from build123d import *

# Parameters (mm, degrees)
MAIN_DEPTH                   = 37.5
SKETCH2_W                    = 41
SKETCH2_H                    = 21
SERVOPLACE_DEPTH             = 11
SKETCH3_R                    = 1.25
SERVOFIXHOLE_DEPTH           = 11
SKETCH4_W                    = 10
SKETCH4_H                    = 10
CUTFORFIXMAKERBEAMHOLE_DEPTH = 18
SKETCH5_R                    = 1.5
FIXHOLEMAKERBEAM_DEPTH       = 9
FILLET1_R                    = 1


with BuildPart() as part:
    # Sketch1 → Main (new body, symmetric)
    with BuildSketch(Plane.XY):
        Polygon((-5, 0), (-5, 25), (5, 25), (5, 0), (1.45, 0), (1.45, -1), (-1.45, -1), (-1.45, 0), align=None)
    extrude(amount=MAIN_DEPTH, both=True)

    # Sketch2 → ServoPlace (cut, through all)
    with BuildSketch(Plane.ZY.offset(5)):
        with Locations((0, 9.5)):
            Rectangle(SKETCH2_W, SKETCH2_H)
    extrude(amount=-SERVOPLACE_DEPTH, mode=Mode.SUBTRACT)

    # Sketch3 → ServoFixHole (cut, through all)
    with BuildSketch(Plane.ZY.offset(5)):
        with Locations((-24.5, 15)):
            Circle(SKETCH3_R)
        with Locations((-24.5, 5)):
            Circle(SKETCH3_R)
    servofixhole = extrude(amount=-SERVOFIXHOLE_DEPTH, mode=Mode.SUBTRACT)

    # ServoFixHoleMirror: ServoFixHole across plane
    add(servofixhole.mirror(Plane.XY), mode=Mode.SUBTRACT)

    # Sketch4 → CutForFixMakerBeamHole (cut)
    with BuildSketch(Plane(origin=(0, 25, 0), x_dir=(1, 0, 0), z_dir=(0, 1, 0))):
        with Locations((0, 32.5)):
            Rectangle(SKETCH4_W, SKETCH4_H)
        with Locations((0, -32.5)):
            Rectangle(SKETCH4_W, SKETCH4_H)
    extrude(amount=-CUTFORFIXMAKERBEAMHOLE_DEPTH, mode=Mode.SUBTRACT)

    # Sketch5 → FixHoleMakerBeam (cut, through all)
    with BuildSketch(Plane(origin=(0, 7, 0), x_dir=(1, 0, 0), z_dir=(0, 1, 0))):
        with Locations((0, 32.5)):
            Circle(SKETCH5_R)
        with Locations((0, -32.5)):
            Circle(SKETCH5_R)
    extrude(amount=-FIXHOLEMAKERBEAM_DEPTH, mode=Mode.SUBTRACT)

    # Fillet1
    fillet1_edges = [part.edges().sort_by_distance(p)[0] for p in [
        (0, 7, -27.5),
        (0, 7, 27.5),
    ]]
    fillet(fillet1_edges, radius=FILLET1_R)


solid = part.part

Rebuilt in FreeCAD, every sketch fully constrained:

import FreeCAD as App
import Part
import Sketcher
from FreeCAD import Vector
Q = App.Units.Quantity


def edges_at(feature, points):
    """Names of the edges that pass closest to the given points."""
    edges = feature.Shape.Edges
    near = lambda p: min(range(len(edges)), key=lambda i: edges[i].distToShape(Part.Vertex(*p))[0])
    return sorted({f"Edge{near(p) + 1}" for p in points})

doc = App.newDocument("Part")
params = doc.addObject("Spreadsheet::Sheet", "Params")
for row, (alias, value) in enumerate([
    ("sketch1_width", "10 mm"),
    ("sketch1_height", "25 mm"),
    ("sketch1_height2", "1 mm"),
    ("sketch1_width2", "2.9 mm"),
    ("pad1_length", "75 mm"),
    ("sketch2_width", "21 mm"),
    ("sketch2_height", "41 mm"),
    ("sketch3_diameter", "2.5 mm"),
    ("sketch4_width", "10 mm"),
    ("pocket3_length", "18 mm"),
    ("sketch5_diameter", "3 mm"),
    ("fillet_radius", "1 mm"),
], start=1):
    params.set(f"A{row}", alias)
    params.set(f"B{row}", "=" + value)
    params.setAlias(f"B{row}", alias)

body = doc.addObject("PartDesign::Body", "Body")

sketch1 = body.newObject("Sketcher::SketchObject", "Sketch")
sketch1.AttachmentSupport = (doc.getObject("XY_Plane"), [""])
sketch1.MapMode = "FlatFace"
sketch1.addGeometry(Part.LineSegment(Vector(-5, 25, 0), Vector(-5, 0, 0)), False)
sketch1.addGeometry(Part.LineSegment(Vector(-5, 0, 0), Vector(-1.4, 0, 0)), False)
sketch1.addGeometry(Part.LineSegment(Vector(-1.4, 0, 0), Vector(-1.4, -1, 0)), False)
sketch1.addGeometry(Part.LineSegment(Vector(-1.4, -1, 0), Vector(1.4, -1, 0)), False)
sketch1.addGeometry(Part.LineSegment(Vector(1.4, -1, 0), Vector(1.4, 0, 0)), False)
sketch1.addGeometry(Part.LineSegment(Vector(1.4, 0, 0), Vector(5, 0, 0)), False)
sketch1.addGeometry(Part.LineSegment(Vector(5, 0, 0), Vector(5, 25, 0)), False)
sketch1.addGeometry(Part.LineSegment(Vector(5, 25, 0), Vector(-5, 25, 0)), False)
sketch1.addConstraint(Sketcher.Constraint("Coincident", 0, 2, 1, 1))
sketch1.addConstraint(Sketcher.Constraint("Coincident", 1, 2, 2, 1))
sketch1.addConstraint(Sketcher.Constraint("Coincident", 2, 2, 3, 1))
sketch1.addConstraint(Sketcher.Constraint("Coincident", 3, 2, 4, 1))
sketch1.addConstraint(Sketcher.Constraint("Coincident", 4, 2, 5, 1))
sketch1.addConstraint(Sketcher.Constraint("Coincident", 5, 2, 6, 1))
sketch1.addConstraint(Sketcher.Constraint("Coincident", 6, 2, 7, 1))
sketch1.addConstraint(Sketcher.Constraint("Coincident", 7, 2, 0, 1))
sketch1.addConstraint(Sketcher.Constraint("Vertical", 0))
sketch1.addConstraint(Sketcher.Constraint("Horizontal", 1))
sketch1.addConstraint(Sketcher.Constraint("Vertical", 2))
sketch1.addConstraint(Sketcher.Constraint("Horizontal", 3))
sketch1.addConstraint(Sketcher.Constraint("Vertical", 4))
sketch1.addConstraint(Sketcher.Constraint("Horizontal", 5))
sketch1.addConstraint(Sketcher.Constraint("Vertical", 6))
sketch1.addConstraint(Sketcher.Constraint("Horizontal", 7))
sketch1.addConstraint(Sketcher.Constraint("Symmetric", 1, 2, 4, 2, -1, 1))
sketch1.addConstraint(Sketcher.Constraint("Symmetric", 0, 2, 5, 2, -2))
sketch1.addConstraint(Sketcher.Constraint("DistanceX", 7, 2, 7, 1, Q("10 mm")))
sketch1.addConstraint(Sketcher.Constraint("DistanceY", 0, 2, 0, 1, Q("25 mm")))
sketch1.addConstraint(Sketcher.Constraint("DistanceY", 2, 2, 2, 1, Q("1 mm")))
sketch1.addConstraint(Sketcher.Constraint("DistanceX", 3, 1, 3, 2, Q("2.9 mm")))
sketch1.setExpression("Constraints[18]", "Params.sketch1_width")
sketch1.setExpression("Constraints[19]", "Params.sketch1_height")
sketch1.setExpression("Constraints[20]", "Params.sketch1_height2")
sketch1.setExpression("Constraints[21]", "Params.sketch1_width2")
pad1 = body.newObject("PartDesign::Pad", "Pad")
pad1.Profile = sketch1
pad1.setExpression("Length", "Params.pad1_length")
pad1.Midplane = True

sketch2 = body.newObject("Sketcher::SketchObject", "Sketch001")
sketch2.AttachmentSupport = (doc.getObject("YZ_Plane"), [""])
sketch2.MapMode = "FlatFace"
sketch2.AttachmentOffset = App.Placement(Vector(0, 0, -5), App.Rotation())
sketch2.addGeometry(Part.LineSegment(Vector(20, -20, 0), Vector(-1, -20, 0)), False)
sketch2.addGeometry(Part.LineSegment(Vector(-1, -20, 0), Vector(-1, 20, 0)), False)
sketch2.addGeometry(Part.LineSegment(Vector(-1, 20, 0), Vector(20, 20, 0)), False)
sketch2.addGeometry(Part.LineSegment(Vector(20, 20, 0), Vector(20, -20, 0)), False)
sketch2.addConstraint(Sketcher.Constraint("Coincident", 0, 2, 1, 1))
sketch2.addConstraint(Sketcher.Constraint("Coincident", 1, 2, 2, 1))
sketch2.addConstraint(Sketcher.Constraint("Coincident", 2, 2, 3, 1))
sketch2.addConstraint(Sketcher.Constraint("Coincident", 3, 2, 0, 1))
sketch2.addConstraint(Sketcher.Constraint("Horizontal", 0))
sketch2.addConstraint(Sketcher.Constraint("Vertical", 1))
sketch2.addConstraint(Sketcher.Constraint("Horizontal", 2))
sketch2.addConstraint(Sketcher.Constraint("Vertical", 3))
sketch2.addConstraint(Sketcher.Constraint("DistanceX", 0, 2, 0, 1, Q("21 mm")))
sketch2.addConstraint(Sketcher.Constraint("DistanceY", 1, 1, 1, 2, Q("41 mm")))
sketch2.addConstraint(Sketcher.Constraint("DistanceX", 0, 2, -1, 1, Q("1 mm")))
sketch2.addConstraint(Sketcher.Constraint("DistanceY", 0, 2, -1, 1, Q("20.5 mm")))
sketch2.setExpression("Constraints[8]", "Params.sketch2_width")
sketch2.setExpression("Constraints[9]", "Params.sketch2_height")
pocket1 = body.newObject("PartDesign::Pocket", "Pocket")
pocket1.Profile = sketch2
pocket1.Type = "ThroughAll"
pocket1.Reversed = True

sketch3 = body.newObject("Sketcher::SketchObject", "Sketch002")
sketch3.AttachmentSupport = (doc.getObject("YZ_Plane"), [""])
sketch3.MapMode = "FlatFace"
sketch3.AttachmentOffset = App.Placement(Vector(0, 0, -5), App.Rotation())
sketch3.addGeometry(Part.Circle(Vector(15, -24.5, 0), Vector(0, 0, 1), 1.2), False)
sketch3.addGeometry(Part.Circle(Vector(5, -24.5, 0), Vector(0, 0, 1), 1.2), False)
sketch3.addConstraint(Sketcher.Constraint("Equal", 0, 1))
sketch3.addConstraint(Sketcher.Constraint("Horizontal", 0, 3, 1, 3))
sketch3.addConstraint(Sketcher.Constraint("Diameter", 0, Q("2.5 mm")))
sketch3.addConstraint(Sketcher.Constraint("DistanceX", -1, 1, 0, 3, Q("15 mm")))
sketch3.addConstraint(Sketcher.Constraint("DistanceX", -1, 1, 1, 3, Q("5 mm")))
sketch3.addConstraint(Sketcher.Constraint("DistanceY", 0, 3, -1, 1, Q("24.5 mm")))
sketch3.setExpression("Constraints[2]", "Params.sketch3_diameter")
pocket2 = body.newObject("PartDesign::Pocket", "Pocket001")
pocket2.Profile = sketch3
pocket2.Type = "ThroughAll"
pocket2.Reversed = True
doc.recompute()

mirrored = body.newObject("PartDesign::Mirrored", "Mirrored")
mirrored.Originals = [pocket2]
mirrored.MirrorPlane = (doc.getObject("XY_Plane"), [""])
body.Tip = mirrored

sketch4 = body.newObject("Sketcher::SketchObject", "Sketch003")
sketch4.AttachmentSupport = (doc.getObject("XZ_Plane"), [""])
sketch4.MapMode = "FlatFace"
sketch4.AttachmentOffset = App.Placement(Vector(0, 0, -25), App.Rotation())
sketch4.addGeometry(Part.LineSegment(Vector(-5, -38, 0), Vector(-5, -28, 0)), False)
sketch4.addGeometry(Part.LineSegment(Vector(-5, -28, 0), Vector(5, -28, 0)), False)
sketch4.addGeometry(Part.LineSegment(Vector(5, -28, 0), Vector(5, -38, 0)), False)
sketch4.addGeometry(Part.LineSegment(Vector(5, -38, 0), Vector(-5, -38, 0)), False)
sketch4.addGeometry(Part.LineSegment(Vector(-5, 28, 0), Vector(-5, 38, 0)), False)
sketch4.addGeometry(Part.LineSegment(Vector(-5, 38, 0), Vector(5, 38, 0)), False)
sketch4.addGeometry(Part.LineSegment(Vector(5, 38, 0), Vector(5, 28, 0)), False)
sketch4.addGeometry(Part.LineSegment(Vector(5, 28, 0), Vector(-5, 28, 0)), False)
sketch4.addConstraint(Sketcher.Constraint("Coincident", 0, 2, 1, 1))
sketch4.addConstraint(Sketcher.Constraint("Coincident", 1, 2, 2, 1))
sketch4.addConstraint(Sketcher.Constraint("Coincident", 2, 2, 3, 1))
sketch4.addConstraint(Sketcher.Constraint("Coincident", 3, 2, 0, 1))
sketch4.addConstraint(Sketcher.Constraint("Coincident", 4, 2, 5, 1))
sketch4.addConstraint(Sketcher.Constraint("Coincident", 5, 2, 6, 1))
sketch4.addConstraint(Sketcher.Constraint("Coincident", 6, 2, 7, 1))
sketch4.addConstraint(Sketcher.Constraint("Coincident", 7, 2, 4, 1))
sketch4.addConstraint(Sketcher.Constraint("Vertical", 0))
sketch4.addConstraint(Sketcher.Constraint("Horizontal", 1))
sketch4.addConstraint(Sketcher.Constraint("Vertical", 2))
sketch4.addConstraint(Sketcher.Constraint("Horizontal", 3))
sketch4.addConstraint(Sketcher.Constraint("Vertical", 4))
sketch4.addConstraint(Sketcher.Constraint("Horizontal", 5))
sketch4.addConstraint(Sketcher.Constraint("Vertical", 6))
sketch4.addConstraint(Sketcher.Constraint("Horizontal", 7))
sketch4.addConstraint(Sketcher.Constraint("Symmetric", 2, 2, 4, 2, -1, 1))
sketch4.addConstraint(Sketcher.Constraint("Symmetric", 0, 2, 6, 2, -1, 1))
sketch4.addConstraint(Sketcher.Constraint("Vertical", 3, 2, 4, 2))
sketch4.addConstraint(Sketcher.Constraint("Equal", 7, 0))
sketch4.addConstraint(Sketcher.Constraint("DistanceX", 1, 1, 1, 2, Q("10 mm")))
sketch4.addConstraint(Sketcher.Constraint("DistanceY", 0, 2, 4, 2, Q("65 mm")))
sketch4.setExpression("Constraints[20]", "Params.sketch4_width")
pocket3 = body.newObject("PartDesign::Pocket", "Pocket002")
pocket3.Profile = sketch4
pocket3.setExpression("Length", "Params.pocket3_length")
pocket3.Reversed = True

sketch5 = body.newObject("Sketcher::SketchObject", "Sketch004")
sketch5.AttachmentSupport = (doc.getObject("XZ_Plane"), [""])
sketch5.MapMode = "FlatFace"
sketch5.AttachmentOffset = App.Placement(Vector(0, 0, -7), App.Rotation())
sketch5.addGeometry(Part.Circle(Vector(0, -32.5, 0), Vector(0, 0, 1), 1.5), False)
sketch5.addGeometry(Part.Circle(Vector(0, 32.5, 0), Vector(0, 0, 1), 1.5), False)
sketch5.addConstraint(Sketcher.Constraint("Equal", 0, 1))
sketch5.addConstraint(Sketcher.Constraint("Symmetric", 0, 3, 1, 3, -1, 1))
sketch5.addConstraint(Sketcher.Constraint("PointOnObject", 0, 3, -2))
sketch5.addConstraint(Sketcher.Constraint("Diameter", 0, Q("3 mm")))
sketch5.addConstraint(Sketcher.Constraint("DistanceY", 0, 3, 1, 3, Q("65 mm")))
sketch5.setExpression("Constraints[3]", "Params.sketch5_diameter")
pocket4 = body.newObject("PartDesign::Pocket", "Pocket003")
pocket4.Profile = sketch5
pocket4.Type = "ThroughAll"
pocket4.Reversed = True
doc.recompute()

fillet = body.newObject("PartDesign::Fillet", "Fillet")
fillet.Base = (pocket4, edges_at(pocket4, [(0, 7, -27.5), (0, 7, 27.5)]))
fillet.setExpression("Radius", "Params.fillet_radius")

doc.recompute()
